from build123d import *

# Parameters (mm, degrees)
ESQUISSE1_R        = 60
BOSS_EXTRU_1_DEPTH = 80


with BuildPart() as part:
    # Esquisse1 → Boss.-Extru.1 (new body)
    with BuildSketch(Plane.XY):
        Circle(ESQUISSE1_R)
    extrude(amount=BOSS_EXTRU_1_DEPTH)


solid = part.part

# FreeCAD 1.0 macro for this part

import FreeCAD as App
import Part
import Sketcher
from FreeCAD import Vector

doc = App.newDocument("Part")
body = doc.addObject("PartDesign::Body", "Body")

sketch1 = body.newObject("Sketcher::SketchObject", "Sketch")
sketch1.AttachmentSupport = (doc.getObject("XY_Plane"), [""])
sketch1.MapMode = "FlatFace"
sketch1.addGeometry(Part.Circle(Vector(0, 0, 0), Vector(0, 0, 1), 60), False)
sketch1.addConstraint([
    Sketcher.Constraint("Coincident", 0, 3, -1, 1),
    Sketcher.Constraint("Diameter", 0, 120.0),
])
pad1 = body.newObject("PartDesign::Pad", "Pad")
pad1.Profile = sketch1
pad1.Length = 80

doc.recompute()
